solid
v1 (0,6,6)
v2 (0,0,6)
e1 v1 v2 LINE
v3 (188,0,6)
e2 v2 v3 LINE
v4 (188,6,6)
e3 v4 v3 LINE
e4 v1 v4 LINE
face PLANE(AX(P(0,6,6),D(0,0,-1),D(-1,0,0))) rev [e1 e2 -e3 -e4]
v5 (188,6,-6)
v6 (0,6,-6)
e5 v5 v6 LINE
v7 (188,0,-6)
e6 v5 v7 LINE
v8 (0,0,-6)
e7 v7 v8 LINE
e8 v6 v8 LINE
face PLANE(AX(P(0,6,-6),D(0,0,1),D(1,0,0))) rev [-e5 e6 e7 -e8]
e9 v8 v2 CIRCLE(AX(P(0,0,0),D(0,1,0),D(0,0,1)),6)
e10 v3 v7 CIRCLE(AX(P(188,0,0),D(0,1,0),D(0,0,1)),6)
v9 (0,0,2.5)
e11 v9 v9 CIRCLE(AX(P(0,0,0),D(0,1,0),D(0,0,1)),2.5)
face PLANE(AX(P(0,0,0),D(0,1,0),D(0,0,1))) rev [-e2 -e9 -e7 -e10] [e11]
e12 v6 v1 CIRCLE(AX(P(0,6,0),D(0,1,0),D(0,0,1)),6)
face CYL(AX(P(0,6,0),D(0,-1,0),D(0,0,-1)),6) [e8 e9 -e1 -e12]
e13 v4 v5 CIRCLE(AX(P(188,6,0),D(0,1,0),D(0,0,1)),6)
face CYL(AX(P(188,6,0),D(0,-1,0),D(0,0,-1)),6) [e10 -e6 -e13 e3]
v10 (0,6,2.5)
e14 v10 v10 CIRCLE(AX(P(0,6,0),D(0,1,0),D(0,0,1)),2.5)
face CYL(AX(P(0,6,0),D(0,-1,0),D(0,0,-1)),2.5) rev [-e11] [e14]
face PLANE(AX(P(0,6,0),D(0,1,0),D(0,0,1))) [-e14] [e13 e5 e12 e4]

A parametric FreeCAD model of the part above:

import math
import FreeCAD as App
import Part
import Sketcher
from FreeCAD import Vector
Q = App.Units.Quantity

doc = App.newDocument("Part")
params = doc.addObject("Spreadsheet::Sheet", "Params")
for row, (alias, value) in enumerate([
    ("sketch1_diameter", "5 mm"),
    ("sketch1_radius", "6 mm"),
    ("sketch1_width", "188 mm"),
    ("pad1_length", "6 mm"),
], start=1):
    params.set(f"A{row}", alias)
    params.set(f"B{row}", "=" + value)
    params.setAlias(f"B{row}", alias)

body = doc.addObject("PartDesign::Body", "Body")

# Sketch on XZ plane
sketch1 = doc.addObject("Sketcher::SketchObject", "Sketch")
body.addObject(sketch1)
sketch1.AttachmentSupport = (doc.XZ_Plane, [""])
sketch1.MapMode = "FlatFace"
sketch1.addGeometry([
    Part.LineSegment(Vector(188, -6, 0), Vector(0, -6, 0)),  # 0
    Part.ArcOfCircle(Part.Circle(Vector(0, 0, 0), Vector(0, 0, 1), 6), math.radians(90), math.radians(270)),  # 1
    Part.LineSegment(Vector(0, 6, 0), Vector(188, 6, 0)),  # 2
    Part.ArcOfCircle(Part.Circle(Vector(188, 0, 0), Vector(0, 0, 1), 6), math.radians(-90), math.radians(90)),  # 3
    Part.Circle(Vector(0, 0, 0), Vector(0, 0, 1), 2.5),  # 4
], False)
sketch1.addConstraint([
    Sketcher.Constraint("Tangent", 0, 2, 1, 2),
    Sketcher.Constraint("Tangent", 1, 1, 2, 1),
    Sketcher.Constraint("Tangent", 2, 2, 3, 2),
    Sketcher.Constraint("Tangent", 3, 1, 0, 1),
    Sketcher.Constraint("Horizontal", 0),
    Sketcher.Constraint("Horizontal", 2),
    Sketcher.Constraint("Coincident", 1, 3, -1, 1),
    Sketcher.Constraint("Coincident", 4, 3, -1, 1),
    Sketcher.Constraint("Diameter", 4, Q("5 mm")),
    Sketcher.Constraint("Radius", 1, Q("6 mm")),
    Sketcher.Constraint("DistanceX", 0, 2, 0, 1, Q("188 mm")),
])
sketch1.setExpression("Constraints[8]", "Params.sketch1_diameter")
sketch1.setExpression("Constraints[9]", "Params.sketch1_radius")
sketch1.setExpression("Constraints[10]", "Params.sketch1_width")
pad1 = doc.addObject("PartDesign::Pad", "Pad")
body.addObject(pad1)
pad1.Profile = sketch1
pad1.setExpression("Length", "Params.pad1_length")
pad1.Reversed = True

doc.recompute()
